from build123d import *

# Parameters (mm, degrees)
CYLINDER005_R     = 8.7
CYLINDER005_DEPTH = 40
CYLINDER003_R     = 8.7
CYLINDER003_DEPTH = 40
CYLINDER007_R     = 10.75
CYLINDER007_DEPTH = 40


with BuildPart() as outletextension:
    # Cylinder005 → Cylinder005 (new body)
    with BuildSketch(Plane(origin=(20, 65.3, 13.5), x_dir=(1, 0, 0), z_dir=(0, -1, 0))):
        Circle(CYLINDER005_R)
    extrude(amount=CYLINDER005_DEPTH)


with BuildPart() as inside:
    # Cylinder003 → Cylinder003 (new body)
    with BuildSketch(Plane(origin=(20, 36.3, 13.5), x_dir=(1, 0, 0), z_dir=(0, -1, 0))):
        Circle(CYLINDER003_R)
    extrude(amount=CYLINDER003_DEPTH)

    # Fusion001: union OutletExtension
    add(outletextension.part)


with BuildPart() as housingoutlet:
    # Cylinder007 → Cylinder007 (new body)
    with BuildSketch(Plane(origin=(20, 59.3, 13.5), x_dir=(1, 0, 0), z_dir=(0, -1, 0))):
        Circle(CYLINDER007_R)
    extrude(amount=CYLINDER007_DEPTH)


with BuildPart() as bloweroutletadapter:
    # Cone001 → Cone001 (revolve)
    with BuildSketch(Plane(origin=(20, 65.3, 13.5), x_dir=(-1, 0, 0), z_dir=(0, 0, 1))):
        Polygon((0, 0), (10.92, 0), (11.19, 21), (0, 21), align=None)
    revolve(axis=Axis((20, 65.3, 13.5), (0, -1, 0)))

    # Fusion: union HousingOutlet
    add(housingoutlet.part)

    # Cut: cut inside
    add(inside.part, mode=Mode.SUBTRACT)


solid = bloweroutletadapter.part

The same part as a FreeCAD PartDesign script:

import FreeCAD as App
import Part
import Sketcher
from FreeCAD import Vector


def add_polygon(sketch, points):
    """Adds a closed chain of lines whose ends are joined by coincident constraints."""
    first, n = sketch.GeometryCount, len(points)
    for a, b in zip(points, points[1:] + points[:1]):
        sketch.addGeometry(Part.LineSegment(App.Vector(*a, 0), App.Vector(*b, 0)), False)
    for i in range(n):
        sketch.addConstraint(Sketcher.Constraint("Coincident", first + i, 2, first + (i + 1) % n, 1))

doc = App.newDocument("Part")
body = doc.addObject("PartDesign::Body", "Body")

# Sketch on XZ plane
sketch1 = body.newObject("Sketcher::SketchObject", "Sketch")
sketch1.AttachmentSupport = (doc.getObject("XZ_Plane"), [""])
sketch1.MapMode = "FlatFace"
sketch1.AttachmentOffset = App.Placement(Vector(0, 0, -65.3), App.Rotation())
sketch1.addGeometry(Part.Circle(Vector(20, 13.5, 0), Vector(0, 0, 1), 8.7), False)
sketch1.addConstraint([
    Sketcher.Constraint("Diameter", 0, 17.4),
    Sketcher.Constraint("DistanceX", -1, 1, 0, 3, 20.0),
    Sketcher.Constraint("DistanceY", -1, 1, 0, 3, 13.5),
])
pad1 = body.newObject("PartDesign::Pad", "Pad")
pad1.Profile = sketch1
pad1.Length = 40
body2 = doc.addObject("PartDesign::Body", "Body001")

# Sketch on XZ plane
sketch2 = body2.newObject("Sketcher::SketchObject", "Sketch001")
sketch2.AttachmentSupport = (doc.getObject("XZ_Plane001"), [""])
sketch2.MapMode = "FlatFace"
sketch2.AttachmentOffset = App.Placement(Vector(0, 0, -36.3), App.Rotation())
sketch2.addGeometry(Part.Circle(Vector(20, 13.5, 0), Vector(0, 0, 1), 8.7), False)
sketch2.addConstraint([
    Sketcher.Constraint("Diameter", 0, 17.4),
    Sketcher.Constraint("DistanceX", -1, 1, 0, 3, 20.0),
    Sketcher.Constraint("DistanceY", -1, 1, 0, 3, 13.5),
])
pad2 = body2.newObject("PartDesign::Pad", "Pad001")
pad2.Profile = sketch2
pad2.Length = 40
doc.recompute()

boolean = body2.newObject("PartDesign::Boolean", "Boolean")
boolean.Type = "Fuse"
boolean.addObjects([body])
body3 = doc.addObject("PartDesign::Body", "Body002")

# Sketch on XZ plane
sketch3 = body3.newObject("Sketcher::SketchObject", "Sketch002")
sketch3.AttachmentSupport = (doc.getObject("XZ_Plane002"), [""])
sketch3.MapMode = "FlatFace"
sketch3.AttachmentOffset = App.Placement(Vector(0, 0, -59.3), App.Rotation())
sketch3.addGeometry(Part.Circle(Vector(20, 13.5, 0), Vector(0, 0, 1), 10.75), False)
sketch3.addConstraint([
    Sketcher.Constraint("Diameter", 0, 21.5),
    Sketcher.Constraint("DistanceX", -1, 1, 0, 3, 20.0),
    Sketcher.Constraint("DistanceY", -1, 1, 0, 3, 13.5),
])
pad3 = body3.newObject("PartDesign::Pad", "Pad002")
pad3.Profile = sketch3
pad3.Length = 40
body4 = doc.addObject("PartDesign::Body", "Body003")

# Sketch on XY plane
sketch4 = body4.newObject("Sketcher::SketchObject", "Sketch003")
sketch4.AttachmentSupport = (doc.getObject("XY_Plane003"), [""])
sketch4.MapMode = "FlatFace"
sketch4.AttachmentOffset = App.Placement(Vector(0, 0, 13.5), App.Rotation())
add_polygon(sketch4, [(20, 65.3), (9.08, 65.3), (8.81, 44.3), (20, 44.3)])  # lines 0-3
sketch4.addGeometry(Part.LineSegment(Vector(20, 65.3, 0), Vector(20, 44.3, 0)), True)  # axis
sketch4.addConstraint([
    Sketcher.Constraint("Horizontal", 0),
    Sketcher.Constraint("Horizontal", 2),
    Sketcher.Constraint("Vertical", 3),
    Sketcher.Constraint("Vertical", 4),
    Sketcher.Constraint("Coincident", 4, 1, 3, 2),
    Sketcher.Constraint("Horizontal", 1, 2, 4, 2),
    Sketcher.Constraint("DistanceY", 3, 1, 3, 2, 21.0),
    Sketcher.Constraint("DistanceX", -1, 1, 2, 2, 20.0),
    Sketcher.Constraint("DistanceX", 0, 2, 0, 1, 10.92),
    Sketcher.Constraint("DistanceX", 2, 1, 2, 2, 11.19),
    Sketcher.Constraint("DistanceY", -1, 1, 0, 2, 65.3),
])
revolution = body4.newObject("PartDesign::Revolution", "Revolution")
revolution.Profile = sketch4
revolution.ReferenceAxis = (sketch4, ["Axis0"])
revolution.Angle = 360
doc.recompute()

boolean2 = body4.newObject("PartDesign::Boolean", "Boolean001")
boolean2.Type = "Fuse"
boolean2.addObjects([body3])
doc.recompute()

boolean3 = body4.newObject("PartDesign::Boolean", "Boolean002")
boolean3.Type = "Cut"
boolean3.addObjects([body2])

doc.recompute()
